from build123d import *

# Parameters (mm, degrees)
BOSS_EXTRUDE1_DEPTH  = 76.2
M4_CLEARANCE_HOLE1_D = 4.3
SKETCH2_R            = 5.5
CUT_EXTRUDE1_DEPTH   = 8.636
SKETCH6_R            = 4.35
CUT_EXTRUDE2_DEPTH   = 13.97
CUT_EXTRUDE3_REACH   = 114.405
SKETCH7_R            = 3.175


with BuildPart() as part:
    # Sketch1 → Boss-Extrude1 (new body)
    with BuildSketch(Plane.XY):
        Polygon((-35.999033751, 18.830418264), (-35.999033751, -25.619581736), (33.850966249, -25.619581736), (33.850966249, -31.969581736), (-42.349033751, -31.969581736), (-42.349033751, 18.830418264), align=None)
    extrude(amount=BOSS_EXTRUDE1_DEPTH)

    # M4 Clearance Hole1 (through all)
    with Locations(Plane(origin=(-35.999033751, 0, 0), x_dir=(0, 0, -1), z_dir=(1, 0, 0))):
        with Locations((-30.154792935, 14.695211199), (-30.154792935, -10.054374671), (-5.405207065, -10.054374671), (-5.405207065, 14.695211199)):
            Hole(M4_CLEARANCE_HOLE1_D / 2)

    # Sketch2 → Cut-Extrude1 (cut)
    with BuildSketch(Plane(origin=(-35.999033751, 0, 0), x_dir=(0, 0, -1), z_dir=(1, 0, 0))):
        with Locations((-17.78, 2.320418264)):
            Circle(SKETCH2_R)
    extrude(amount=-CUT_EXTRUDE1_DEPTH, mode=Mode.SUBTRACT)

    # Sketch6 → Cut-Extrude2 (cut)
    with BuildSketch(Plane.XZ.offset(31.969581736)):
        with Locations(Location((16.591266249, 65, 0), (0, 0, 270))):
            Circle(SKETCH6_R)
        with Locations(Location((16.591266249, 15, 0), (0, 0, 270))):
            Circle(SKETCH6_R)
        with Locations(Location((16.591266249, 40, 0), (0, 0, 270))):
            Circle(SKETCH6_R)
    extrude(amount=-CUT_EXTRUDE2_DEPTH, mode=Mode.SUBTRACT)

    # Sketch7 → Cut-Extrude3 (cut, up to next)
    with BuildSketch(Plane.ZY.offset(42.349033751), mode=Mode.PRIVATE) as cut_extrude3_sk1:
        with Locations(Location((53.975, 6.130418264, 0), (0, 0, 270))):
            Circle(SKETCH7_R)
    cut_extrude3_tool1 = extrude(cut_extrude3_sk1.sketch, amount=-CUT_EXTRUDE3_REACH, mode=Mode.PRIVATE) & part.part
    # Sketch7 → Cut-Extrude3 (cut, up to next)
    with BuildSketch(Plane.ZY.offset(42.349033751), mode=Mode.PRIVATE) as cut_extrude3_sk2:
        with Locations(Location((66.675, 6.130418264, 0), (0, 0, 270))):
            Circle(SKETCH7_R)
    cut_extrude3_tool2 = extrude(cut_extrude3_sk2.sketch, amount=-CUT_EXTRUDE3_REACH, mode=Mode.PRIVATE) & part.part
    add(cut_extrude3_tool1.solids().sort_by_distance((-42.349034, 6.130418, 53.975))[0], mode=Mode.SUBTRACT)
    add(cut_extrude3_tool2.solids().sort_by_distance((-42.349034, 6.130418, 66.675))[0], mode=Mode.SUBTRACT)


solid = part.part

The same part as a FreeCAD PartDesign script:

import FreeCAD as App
import Part
import Sketcher

V = App.Vector
Q = App.Units.Quantity


def add_polygon(sketch, points):
    """Adds a closed chain of lines whose ends are joined by coincident constraints."""
    first, n = sketch.GeometryCount, len(points)
    for a, b in zip(points, points[1:] + points[:1]):
        sketch.addGeometry(Part.LineSegment(App.Vector(*a, 0), App.Vector(*b, 0)), False)
    for i in range(n):
        sketch.addConstraint(Sketcher.Constraint("Coincident", first + i, 2, first + (i + 1) % n, 1))

doc = App.newDocument("Part")
body = doc.addObject("PartDesign::Body", "Body")

sketch1 = body.newObject("Sketcher::SketchObject", "Sketch")
sketch1.AttachmentSupport = (doc.getObject("XY_Plane"), [""])
sketch1.MapMode = "FlatFace"
add_polygon(sketch1, [(-36, -26), (-36, 19), (-42, 19), (-42, -32), (34, -32), (34, -26)])
sketch1.addConstraint(Sketcher.Constraint("Vertical", 0))
sketch1.addConstraint(Sketcher.Constraint("Horizontal", 1))
sketch1.addConstraint(Sketcher.Constraint("Vertical", 2))
sketch1.addConstraint(Sketcher.Constraint("Horizontal", 3))
sketch1.addConstraint(Sketcher.Constraint("Vertical", 4))
sketch1.addConstraint(Sketcher.Constraint("Horizontal", 5))
sketch1.addConstraint(Sketcher.Constraint("Equal", 1, 4))
sketch1.addConstraint(Sketcher.Constraint("DistanceX", 3, 1, 3, 2, Q("3 in")))
sketch1.addConstraint(Sketcher.Constraint("DistanceY", 2, 2, 2, 1, Q("2 in")))
sketch1.addConstraint(Sketcher.Constraint("DistanceX", 1, 2, 1, 1, Q("0.25 in")))
sketch1.addConstraint(Sketcher.Constraint("DistanceY", -1, 1, 0, 2, Q("18.830418 mm")))
sketch1.addConstraint(Sketcher.Constraint("DistanceX", 0, 2, -1, 1, Q("35.999034 mm")))
pad1 = body.newObject("PartDesign::Pad", "Pad")
pad1.Profile = sketch1
pad1.Length = Q("3 in")

sketch2 = body.newObject("Sketcher::SketchObject", "Sketch001")
sketch2.AttachmentSupport = (doc.getObject("YZ_Plane"), [""])
sketch2.MapMode = "FlatFace"
sketch2.AttachmentOffset = App.Placement(V(0, 0, -35.999034), App.Rotation())
sketch2.addGeometry(Part.Circle(V(14.7, 30.2, 0), V(0, 0, 1), 2.1), False)
sketch2.addGeometry(Part.Circle(V(-10.1, 30.2, 0), V(0, 0, 1), 2.1), False)
sketch2.addGeometry(Part.Circle(V(-10.1, 5.4, 0), V(0, 0, 1), 2.1), False)
sketch2.addGeometry(Part.Circle(V(14.7, 5.4, 0), V(0, 0, 1), 2.1), False)
sketch2.addConstraint(Sketcher.Constraint("Equal", 0, 1))
sketch2.addConstraint(Sketcher.Constraint("Equal", 1, 2))
sketch2.addConstraint(Sketcher.Constraint("Equal", 2, 3))
sketch2.addConstraint(Sketcher.Constraint("Horizontal", 0, 3, 1, 3))
sketch2.addConstraint(Sketcher.Constraint("Horizontal", 2, 3, 3, 3))
sketch2.addConstraint(Sketcher.Constraint("Vertical", 1, 3, 2, 3))
sketch2.addConstraint(Sketcher.Constraint("Vertical", 0, 3, 3, 3))
sketch2.addConstraint(Sketcher.Constraint("Diameter", 0, Q("4.3 mm")))
sketch2.addConstraint(Sketcher.Constraint("DistanceX", -1, 1, 0, 3, Q("14.695211 mm")))
sketch2.addConstraint(Sketcher.Constraint("DistanceY", -1, 1, 0, 3, Q("30.154793 mm")))
sketch2.addConstraint(Sketcher.Constraint("DistanceX", 1, 3, -1, 1, Q("10.054375 mm")))
sketch2.addConstraint(Sketcher.Constraint("DistanceY", -1, 1, 2, 3, Q("5.405207 mm")))
doc.recompute()
hole = body.newObject("PartDesign::Hole", "Hole")
hole.Profile = sketch2
hole.ThreadType = "None"
hole.Diameter = 4.3
hole.DepthType = "ThroughAll"

sketch3 = body.newObject("Sketcher::SketchObject", "Sketch002")
sketch3.AttachmentSupport = (doc.getObject("YZ_Plane"), [""])
sketch3.MapMode = "FlatFace"
sketch3.AttachmentOffset = App.Placement(V(0, 0, -35.999034), App.Rotation())
sketch3.addGeometry(Part.Circle(V(2, 18, 0), V(0, 0, 1), 6), False)
sketch3.addConstraint(Sketcher.Constraint("DistanceY", -1, 1, 0, 3, Q("0.7 in")))
sketch3.addConstraint(Sketcher.Constraint("Diameter", 0, Q("11 mm")))
sketch3.addConstraint(Sketcher.Constraint("DistanceX", -1, 1, 0, 3, Q("2.320418 mm")))
pocket1 = body.newObject("PartDesign::Pocket", "Pocket")
pocket1.Profile = sketch3
pocket1.Length = Q("0.34 in")

sketch4 = body.newObject("Sketcher::SketchObject", "Sketch003")
sketch4.AttachmentSupport = (doc.getObject("XZ_Plane"), [""])
sketch4.MapMode = "FlatFace"
sketch4.AttachmentOffset = App.Placement(V(0, 0, 31.969582), App.Rotation())
sketch4.addGeometry(Part.Circle(V(16.6, 65, 0), V(0, 0, 1), 4.3), False)
sketch4.addGeometry(Part.Circle(V(16.6, 15, 0), V(0, 0, 1), 4.3), False)
sketch4.addGeometry(Part.Circle(V(16.6, 40, 0), V(0, 0, 1), 4.3), False)
sketch4.addConstraint(Sketcher.Constraint("Equal", 0, 1))
sketch4.addConstraint(Sketcher.Constraint("Equal", 1, 2))
sketch4.addConstraint(Sketcher.Constraint("Vertical", 0, 3, 1, 3))
sketch4.addConstraint(Sketcher.Constraint("Vertical", 1, 3, 2, 3))
sketch4.addConstraint(Sketcher.Constraint("Diameter", 0, Q("8.7 mm")))
sketch4.addConstraint(Sketcher.Constraint("DistanceY", -1, 1, 0, 3, Q("65 mm")))
sketch4.addConstraint(Sketcher.Constraint("DistanceY", -1, 1, 1, 3, Q("15 mm")))
sketch4.addConstraint(Sketcher.Constraint("DistanceY", -1, 1, 2, 3, Q("40 mm")))
sketch4.addConstraint(Sketcher.Constraint("DistanceX", -1, 1, 0, 3, Q("16.591266 mm")))
pocket2 = body.newObject("PartDesign::Pocket", "Pocket001")
pocket2.Profile = sketch4
pocket2.Length = Q("0.55 in")

sketch5 = body.newObject("Sketcher::SketchObject", "Sketch004")
sketch5.AttachmentSupport = (doc.getObject("YZ_Plane"), [""])
sketch5.MapMode = "FlatFace"
sketch5.AttachmentOffset = App.Placement(V(0, 0, -42.349034), App.Rotation())
sketch5.addGeometry(Part.Circle(V(6.1, 54, 0), V(0, 0, 1), 3.2), False)
sketch5.addConstraint(Sketcher.Constraint("Diameter", 0, Q("0.25 in")))
sketch5.addConstraint(Sketcher.Constraint("DistanceY", -1, 1, 0, 3, Q("2.125 in")))
sketch5.addConstraint(Sketcher.Constraint("DistanceX", -1, 1, 0, 3, Q("6.130418 mm")))
pocket3 = body.newObject("PartDesign::Pocket", "Pocket002")
pocket3.Profile = sketch5
pocket3.Type = "UpToFirst"
pocket3.Reversed = True

sketch6 = body.newObject("Sketcher::SketchObject", "Sketch005")
sketch6.AttachmentSupport = (doc.getObject("YZ_Plane"), [""])
sketch6.MapMode = "FlatFace"
sketch6.AttachmentOffset = App.Placement(V(0, 0, -42.349034), App.Rotation())
sketch6.addGeometry(Part.Circle(V(6.1, 66.7, 0), V(0, 0, 1), 3.2), False)
sketch6.addConstraint(Sketcher.Constraint("Diameter", 0, Q("0.25 in")))
sketch6.addConstraint(Sketcher.Constraint("DistanceY", -1, 1, 0, 3, Q("2.625 in")))
sketch6.addConstraint(Sketcher.Constraint("DistanceX", -1, 1, 0, 3, Q("6.130418 mm")))
pocket4 = body.newObject("PartDesign::Pocket", "Pocket003")
pocket4.Profile = sketch6
pocket4.Type = "UpToFirst"
pocket4.Reversed = True

doc.recompute()
